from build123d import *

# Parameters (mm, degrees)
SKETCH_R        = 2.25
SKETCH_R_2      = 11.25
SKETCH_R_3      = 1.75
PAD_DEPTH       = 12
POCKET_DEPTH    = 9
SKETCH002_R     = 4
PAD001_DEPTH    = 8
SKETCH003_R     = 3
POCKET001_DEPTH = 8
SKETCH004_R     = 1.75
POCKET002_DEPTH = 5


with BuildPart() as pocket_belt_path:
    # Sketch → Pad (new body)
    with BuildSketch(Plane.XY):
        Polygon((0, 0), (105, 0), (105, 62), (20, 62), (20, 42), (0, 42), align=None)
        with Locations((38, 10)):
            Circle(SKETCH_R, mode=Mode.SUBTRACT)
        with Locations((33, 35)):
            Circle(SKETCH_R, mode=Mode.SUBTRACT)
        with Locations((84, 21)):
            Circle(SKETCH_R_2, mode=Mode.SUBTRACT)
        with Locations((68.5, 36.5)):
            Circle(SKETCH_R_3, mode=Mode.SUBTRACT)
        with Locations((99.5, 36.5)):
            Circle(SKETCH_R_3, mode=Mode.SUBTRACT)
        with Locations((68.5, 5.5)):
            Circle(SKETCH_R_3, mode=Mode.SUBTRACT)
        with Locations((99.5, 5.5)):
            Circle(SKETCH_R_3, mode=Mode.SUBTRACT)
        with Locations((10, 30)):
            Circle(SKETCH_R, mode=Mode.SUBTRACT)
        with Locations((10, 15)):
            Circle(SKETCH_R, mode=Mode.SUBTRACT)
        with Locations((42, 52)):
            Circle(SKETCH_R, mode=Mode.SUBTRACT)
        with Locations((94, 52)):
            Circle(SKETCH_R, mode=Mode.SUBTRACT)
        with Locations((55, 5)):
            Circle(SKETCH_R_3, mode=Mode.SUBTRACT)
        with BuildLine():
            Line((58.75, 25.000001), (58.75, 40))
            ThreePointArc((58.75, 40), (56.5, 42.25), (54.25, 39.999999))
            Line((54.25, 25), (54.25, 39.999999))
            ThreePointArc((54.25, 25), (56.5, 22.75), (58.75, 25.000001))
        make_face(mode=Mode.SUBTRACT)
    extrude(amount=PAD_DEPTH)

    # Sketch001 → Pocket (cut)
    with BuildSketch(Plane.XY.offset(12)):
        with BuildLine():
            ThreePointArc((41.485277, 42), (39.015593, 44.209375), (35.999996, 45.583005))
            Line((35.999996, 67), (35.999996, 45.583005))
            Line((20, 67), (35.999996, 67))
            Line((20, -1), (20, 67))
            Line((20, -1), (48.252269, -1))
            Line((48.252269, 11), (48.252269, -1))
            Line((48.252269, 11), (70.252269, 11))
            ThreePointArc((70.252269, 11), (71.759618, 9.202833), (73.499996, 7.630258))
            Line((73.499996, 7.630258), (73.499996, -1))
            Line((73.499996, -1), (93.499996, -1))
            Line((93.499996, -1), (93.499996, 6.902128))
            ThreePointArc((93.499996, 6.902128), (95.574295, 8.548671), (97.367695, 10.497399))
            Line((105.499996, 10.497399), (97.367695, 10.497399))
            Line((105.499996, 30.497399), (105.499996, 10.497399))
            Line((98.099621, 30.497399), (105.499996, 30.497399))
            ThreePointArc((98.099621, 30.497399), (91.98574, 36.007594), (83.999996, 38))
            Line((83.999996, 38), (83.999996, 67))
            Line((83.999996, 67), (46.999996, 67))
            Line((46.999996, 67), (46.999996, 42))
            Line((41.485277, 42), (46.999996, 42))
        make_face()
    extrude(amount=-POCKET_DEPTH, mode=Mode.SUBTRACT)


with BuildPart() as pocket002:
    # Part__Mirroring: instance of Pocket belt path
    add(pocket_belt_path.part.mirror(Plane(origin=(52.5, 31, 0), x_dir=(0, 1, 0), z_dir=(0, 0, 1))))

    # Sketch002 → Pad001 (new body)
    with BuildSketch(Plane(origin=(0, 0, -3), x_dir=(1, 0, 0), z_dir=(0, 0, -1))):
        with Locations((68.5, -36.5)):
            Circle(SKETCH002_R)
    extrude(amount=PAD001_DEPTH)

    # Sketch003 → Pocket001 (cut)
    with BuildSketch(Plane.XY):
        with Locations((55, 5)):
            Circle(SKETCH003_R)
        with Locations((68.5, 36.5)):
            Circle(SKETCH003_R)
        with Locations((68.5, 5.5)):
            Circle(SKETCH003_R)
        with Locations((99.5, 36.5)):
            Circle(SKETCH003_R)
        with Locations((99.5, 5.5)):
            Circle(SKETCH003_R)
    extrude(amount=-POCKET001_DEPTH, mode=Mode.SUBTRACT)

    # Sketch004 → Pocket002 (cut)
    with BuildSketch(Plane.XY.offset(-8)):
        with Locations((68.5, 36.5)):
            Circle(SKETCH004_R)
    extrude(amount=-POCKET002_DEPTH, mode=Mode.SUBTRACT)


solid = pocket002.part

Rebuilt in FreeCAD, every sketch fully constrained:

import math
import FreeCAD as App
import Part
import Sketcher

V = App.Vector


def add_polygon(sketch, points):
    """Adds a closed chain of lines whose ends are joined by coincident constraints."""
    first, n = sketch.GeometryCount, len(points)
    for a, b in zip(points, points[1:] + points[:1]):
        sketch.addGeometry(Part.LineSegment(App.Vector(*a, 0), App.Vector(*b, 0)), False)
    for i in range(n):
        sketch.addConstraint(Sketcher.Constraint("Coincident", first + i, 2, first + (i + 1) % n, 1))

doc = App.newDocument("Part")
body = doc.addObject("PartDesign::Body", "Body")

# Sketch on XY plane
sketch1 = doc.addObject("Sketcher::SketchObject", "Sketch")
body.addObject(sketch1)
sketch1.AttachmentSupport = (doc.XY_Plane, [""])
sketch1.MapMode = "FlatFace"
add_polygon(sketch1, [(0, 0), (105, 0), (105, 62), (20, 62), (20, 42), (0, 42)])  # lines 0-5
sketch1.addGeometry(Part.Circle(V(10, 15, 0), V(0, 0, 1), 2.25), False)  # 6
sketch1.addGeometry(Part.Circle(V(38, 10, 0), V(0, 0, 1), 2.25), False)  # 7
sketch1.addGeometry(Part.Circle(V(55, 5, 0), V(0, 0, 1), 1.75), False)  # 8
sketch1.addGeometry(Part.Circle(V(68.5, 5.5, 0), V(0, 0, 1), 1.75), False)  # 9
sketch1.addGeometry(Part.Circle(V(99.5, 5.5, 0), V(0, 0, 1), 1.75), False)  # 10
sketch1.addGeometry(Part.Circle(V(84, 21, 0), V(0, 0, 1), 11.25), False)  # 11
sketch1.addGeometry(Part.Circle(V(10, 30, 0), V(0, 0, 1), 2.25), False)  # 12
sketch1.addGeometry(Part.Circle(V(33, 35, 0), V(0, 0, 1), 2.25), False)  # 13
sketch1.addGeometry(Part.Circle(V(42, 52, 0), V(0, 0, 1), 2.25), False)  # 14
sketch1.addGeometry(Part.LineSegment(V(58.75, 40, 0), V(58.75, 25.000001, 0)), False)  # 15
sketch1.addGeometry(Part.ArcOfCircle(Part.Circle(V(56.5, 25, 0), V(0, 0, 1), 2.25), math.radians(180), math.radians(360.000025)), False)  # 16
sketch1.addGeometry(Part.LineSegment(V(54.25, 25, 0), V(54.25, 39.999999, 0)), False)  # 17
sketch1.addGeometry(Part.ArcOfCircle(Part.Circle(V(56.5, 40, 0), V(0, 0, 1), 2.25), math.radians(0), math.radians(180.000025)), False)  # 18
sketch1.addGeometry(Part.Circle(V(68.5, 36.5, 0), V(0, 0, 1), 1.75), False)  # 19
sketch1.addGeometry(Part.Circle(V(99.5, 36.5, 0), V(0, 0, 1), 1.75), False)  # 20
sketch1.addGeometry(Part.Circle(V(94, 52, 0), V(0, 0, 1), 2.25), False)  # 21
sketch1.addConstraint(Sketcher.Constraint("Tangent", 15, 2, 16, 2))
sketch1.addConstraint(Sketcher.Constraint("Tangent", 16, 1, 17, 1))
sketch1.addConstraint(Sketcher.Constraint("Tangent", 17, 2, 18, 2))
sketch1.addConstraint(Sketcher.Constraint("Tangent", 18, 1, 15, 1))
sketch1.addConstraint(Sketcher.Constraint("Horizontal", 0))
sketch1.addConstraint(Sketcher.Constraint("Vertical", 1))
sketch1.addConstraint(Sketcher.Constraint("Horizontal", 2))
sketch1.addConstraint(Sketcher.Constraint("Vertical", 3))
sketch1.addConstraint(Sketcher.Constraint("Horizontal", 4))
sketch1.addConstraint(Sketcher.Constraint("Vertical", 5))
sketch1.addConstraint(Sketcher.Constraint("Vertical", 15))
sketch1.addConstraint(Sketcher.Constraint("Vertical", 17))
sketch1.addConstraint(Sketcher.Constraint("Coincident", 5, 2, -1, 1))
sketch1.addConstraint(Sketcher.Constraint("Equal", 6, 7))
sketch1.addConstraint(Sketcher.Constraint("Equal", 8, 9))
sketch1.addConstraint(Sketcher.Constraint("Equal", 9, 10))
sketch1.addConstraint(Sketcher.Constraint("Equal", 7, 12))
sketch1.addConstraint(Sketcher.Constraint("Equal", 12, 13))
sketch1.addConstraint(Sketcher.Constraint("Equal", 13, 14))
sketch1.addConstraint(Sketcher.Constraint("Equal", 14, 16))
sketch1.addConstraint(Sketcher.Constraint("Equal", 10, 19))
sketch1.addConstraint(Sketcher.Constraint("Equal", 19, 20))
sketch1.addConstraint(Sketcher.Constraint("Equal", 18, 21))
sketch1.addConstraint(Sketcher.Constraint("Horizontal", 9, 3, 10, 3))
sketch1.addConstraint(Sketcher.Constraint("Horizontal", 19, 3, 20, 3))
sketch1.addConstraint(Sketcher.Constraint("Horizontal", 14, 3, 21, 3))
sketch1.addConstraint(Sketcher.Constraint("Vertical", 6, 3, 12, 3))
sketch1.addConstraint(Sketcher.Constraint("Vertical", 9, 3, 19, 3))
sketch1.addConstraint(Sketcher.Constraint("Vertical", 10, 3, 20, 3))
sketch1.addConstraint(Sketcher.Constraint("Equal", 4, 3))
sketch1.addConstraint(Sketcher.Constraint("Diameter", 6, 4.5))
sketch1.addConstraint(Sketcher.Constraint("Diameter", 8, 3.5))
sketch1.addConstraint(Sketcher.Constraint("Diameter", 11, 22.5))
sketch1.addConstraint(Sketcher.Constraint("DistanceX", 0, 1, 0, 2, 105.0))
sketch1.addConstraint(Sketcher.Constraint("DistanceX", 2, 2, 2, 1, 85.0))
sketch1.addConstraint(Sketcher.Constraint("DistanceY", 1, 1, 1, 2, 62.0))
sketch1.addConstraint(Sketcher.Constraint("DistanceY", 15, 2, 15, 1, 14.999999))
sketch1.addConstraint(Sketcher.Constraint("DistanceX", -1, 1, 6, 3, 10.0))
sketch1.addConstraint(Sketcher.Constraint("DistanceY", -1, 1, 6, 3, 15.0))
sketch1.addConstraint(Sketcher.Constraint("DistanceX", -1, 1, 7, 3, 38.0))
sketch1.addConstraint(Sketcher.Constraint("DistanceY", -1, 1, 7, 3, 10.0))
sketch1.addConstraint(Sketcher.Constraint("DistanceX", -1, 1, 8, 3, 55.0))
sketch1.addConstraint(Sketcher.Constraint("DistanceY", -1, 1, 8, 3, 5.0))
sketch1.addConstraint(Sketcher.Constraint("DistanceX", -1, 1, 11, 3, 84.0))
sketch1.addConstraint(Sketcher.Constraint("DistanceY", -1, 1, 11, 3, 21.0))
sketch1.addConstraint(Sketcher.Constraint("DistanceY", -1, 1, 12, 3, 30.0))
sketch1.addConstraint(Sketcher.Constraint("DistanceX", -1, 1, 13, 3, 33.0))
sketch1.addConstraint(Sketcher.Constraint("DistanceY", -1, 1, 13, 3, 35.0))
sketch1.addConstraint(Sketcher.Constraint("DistanceX", -1, 1, 14, 3, 42.0))
sketch1.addConstraint(Sketcher.Constraint("DistanceY", -1, 1, 14, 3, 52.0))
sketch1.addConstraint(Sketcher.Constraint("DistanceY", -1, 1, 16, 3, 25.0))
sketch1.addConstraint(Sketcher.Constraint("DistanceX", -1, 1, 21, 3, 94.0))
sketch1.addConstraint(Sketcher.Constraint("DistanceX", 9, 3, 10, 3, 31.0))
sketch1.addConstraint(Sketcher.Constraint("DistanceX", 16, 3, 9, 3, 12.0))
sketch1.addConstraint(Sketcher.Constraint("DistanceY", 9, 3, 19, 3, 31.0))
sketch1.addConstraint(Sketcher.Constraint("DistanceX", -1, 1, 9, 3, 68.5))
sketch1.addConstraint(Sketcher.Constraint("DistanceY", -1, 1, 9, 3, 5.5))
pad1 = doc.addObject("PartDesign::Pad", "Pad")
body.addObject(pad1)
pad1.Profile = sketch1
pad1.Length = 12

# Sketch on XY plane
sketch2 = doc.addObject("Sketcher::SketchObject", "Sketch001")
body.addObject(sketch2)
sketch2.AttachmentSupport = (doc.XY_Plane, [""])
sketch2.MapMode = "FlatFace"
sketch2.AttachmentOffset = App.Placement(V(0, 0, 12), App.Rotation())
sketch2.addGeometry(Part.ArcOfCircle(Part.Circle(V(32.999996, 35.000001, 0), V(0, 0, 1), 10.999999), math.radians(39.521196), math.radians(74.17338)), False)
sketch2.addGeometry(Part.LineSegment(V(35.999996, 45.583005, 0), V(35.999996, 67, 0)), False)
sketch2.addGeometry(Part.LineSegment(V(35.999996, 67, 0), V(20, 67, 0)), False)
sketch2.addGeometry(Part.LineSegment(V(20, 67, 0), V(20, -1, 0)), False)
sketch2.addGeometry(Part.LineSegment(V(20, -1, 0), V(48.252269, -1, 0)), False)
sketch2.addGeometry(Part.LineSegment(V(48.252269, -1, 0), V(48.252269, 11, 0)), False)
sketch2.addGeometry(Part.LineSegment(V(48.252269, 11, 0), V(70.252269, 11, 0)), False)
sketch2.addGeometry(Part.ArcOfCircle(Part.Circle(V(83.999989, 20.999992, 0), V(0, 0, 1), 16.99999), math.radians(-143.968127), math.radians(-128.144509)), False)
sketch2.addGeometry(Part.LineSegment(V(73.499996, 7.630258, 0), V(73.499996, -1, 0)), False)
sketch2.addGeometry(Part.LineSegment(V(73.499996, -1, 0), V(93.499996, -1, 0)), False)
sketch2.addGeometry(Part.LineSegment(V(93.499996, -1, 0), V(93.499996, 6.902128, 0)), False)
sketch2.addGeometry(Part.ArcOfCircle(Part.Circle(V(83.999983, 21.000016, 0), V(0, 0, 1), 17.00002), math.radians(-56.025516), math.radians(-38.155674)), False)
sketch2.addGeometry(Part.LineSegment(V(97.367695, 10.497399, 0), V(105.499996, 10.497399, 0)), False)
sketch2.addGeometry(Part.LineSegment(V(105.499996, 10.497399, 0), V(105.499996, 30.497399, 0)), False)
sketch2.addGeometry(Part.LineSegment(V(105.499996, 30.497399, 0), V(98.099621, 30.497399, 0)), False)
sketch2.addGeometry(Part.ArcOfCircle(Part.Circle(V(83.999994, 20.999995, 0), V(0, 0, 1), 17.000005), math.radians(33.963915), math.radians(89.999993)), False)
sketch2.addGeometry(Part.LineSegment(V(83.999996, 38, 0), V(83.999996, 67, 0)), False)
sketch2.addGeometry(Part.LineSegment(V(83.999996, 67, 0), V(46.999996, 67, 0)), False)
sketch2.addGeometry(Part.LineSegment(V(46.999996, 67, 0), V(46.999996, 42, 0)), False)
sketch2.addGeometry(Part.LineSegment(V(46.999996, 42, 0), V(41.485277, 42, 0)), False)
sketch2.addConstraint(Sketcher.Constraint("Coincident", 0, 2, 1, 1))
sketch2.addConstraint(Sketcher.Constraint("Coincident", 1, 2, 2, 1))
sketch2.addConstraint(Sketcher.Constraint("Coincident", 2, 2, 3, 1))
sketch2.addConstraint(Sketcher.Constraint("Coincident", 3, 2, 4, 1))
sketch2.addConstraint(Sketcher.Constraint("Coincident", 4, 2, 5, 1))
sketch2.addConstraint(Sketcher.Constraint("Coincident", 5, 2, 6, 1))
sketch2.addConstraint(Sketcher.Constraint("Coincident", 6, 2, 7, 1))
sketch2.addConstraint(Sketcher.Constraint("Coincident", 7, 2, 8, 1))
sketch2.addConstraint(Sketcher.Constraint("Coincident", 8, 2, 9, 1))
sketch2.addConstraint(Sketcher.Constraint("Coincident", 9, 2, 10, 1))
sketch2.addConstraint(Sketcher.Constraint("Coincident", 10, 2, 11, 1))
sketch2.addConstraint(Sketcher.Constraint("Coincident", 11, 2, 12, 1))
sketch2.addConstraint(Sketcher.Constraint("Coincident", 12, 2, 13, 1))
sketch2.addConstraint(Sketcher.Constraint("Coincident", 13, 2, 14, 1))
sketch2.addConstraint(Sketcher.Constraint("Coincident", 14, 2, 15, 1))
sketch2.addConstraint(Sketcher.Constraint("Coincident", 15, 2, 16, 1))
sketch2.addConstraint(Sketcher.Constraint("Coincident", 16, 2, 17, 1))
sketch2.addConstraint(Sketcher.Constraint("Coincident", 17, 2, 18, 1))
sketch2.addConstraint(Sketcher.Constraint("Coincident", 18, 2, 19, 1))
sketch2.addConstraint(Sketcher.Constraint("Coincident", 19, 2, 0, 1))
sketch2.addConstraint(Sketcher.Constraint("Vertical", 1))
sketch2.addConstraint(Sketcher.Constraint("Horizontal", 2))
sketch2.addConstraint(Sketcher.Constraint("Vertical", 3))
sketch2.addConstraint(Sketcher.Constraint("Horizontal", 4))
sketch2.addConstraint(Sketcher.Constraint("Vertical", 5))
sketch2.addConstraint(Sketcher.Constraint("Horizontal", 6))
sketch2.addConstraint(Sketcher.Constraint("Vertical", 8))
sketch2.addConstraint(Sketcher.Constraint("Horizontal", 9))
sketch2.addConstraint(Sketcher.Constraint("Vertical", 10))
sketch2.addConstraint(Sketcher.Constraint("Horizontal", 12))
sketch2.addConstraint(Sketcher.Constraint("Vertical", 13))
sketch2.addConstraint(Sketcher.Constraint("Horizontal", 14))
sketch2.addConstraint(Sketcher.Constraint("Vertical", 16))
sketch2.addConstraint(Sketcher.Constraint("Horizontal", 17))
sketch2.addConstraint(Sketcher.Constraint("Vertical", 18))
sketch2.addConstraint(Sketcher.Constraint("Horizontal", 19))
sketch2.addConstraint(Sketcher.Constraint("Coincident", 15, 3, 7, 3))
sketch2.addConstraint(Sketcher.Constraint("Horizontal", 4, 2, 8, 2))
sketch2.addConstraint(Sketcher.Constraint("Horizontal", 2, 2, 16, 2))
sketch2.addConstraint(Sketcher.Constraint("Equal", 9, 13))
sketch2.addConstraint(Sketcher.Constraint("Radius", 0, 10.999999))
sketch2.addConstraint(Sketcher.Constraint("DistanceX", 6, 1, 6, 2, 22.0))
sketch2.addConstraint(Sketcher.Constraint("DistanceX", 9, 1, 9, 2, 20.0))
sketch2.addConstraint(Sketcher.Constraint("DistanceX", 17, 2, 17, 1, 37.0))
sketch2.addConstraint(Sketcher.Constraint("DistanceY", 3, 2, 3, 1, 68.0))
sketch2.addConstraint(Sketcher.Constraint("DistanceY", 5, 1, 5, 2, 12.0))
sketch2.addConstraint(Sketcher.Constraint("DistanceY", 16, 1, 16, 2, 29.0))
sketch2.addConstraint(Sketcher.Constraint("DistanceY", 18, 2, 18, 1, 25.0))
sketch2.addConstraint(Sketcher.Constraint("DistanceY", -1, 1, 0, 3, 35.000001))
sketch2.addConstraint(Sketcher.Constraint("DistanceY", -1, 1, 1, 2, 67.0))
sketch2.addConstraint(Sketcher.Constraint("DistanceX", -1, 1, 2, 2, 20.0))
sketch2.addConstraint(Sketcher.Constraint("DistanceX", 0, 3, 0, 2, 3.0))
sketch2.addConstraint(Sketcher.Constraint("DistanceX", 10, 2, 12, 2, 12.0))
sketch2.addConstraint(Sketcher.Constraint("DistanceX", 1, 2, 17, 2, 11.0))
sketch2.addConstraint(Sketcher.Constraint("DistanceX", 15, 2, 13, 2, 21.5))
sketch2.addConstraint(Sketcher.Constraint("Radius", 7, 16.99999))
sketch2.addConstraint(Sketcher.Constraint("Radius", 11, 17.00002))
sketch2.addConstraint(Sketcher.Constraint("DistanceX", 12, 1, 12, 2, 8.132301))
sketch2.addConstraint(Sketcher.Constraint("Radius", 15, 17.000005))
sketch2.addConstraint(Sketcher.Constraint("DistanceX", 4, 1, 4, 2, 28.252269))
sketch2.addConstraint(Sketcher.Constraint("DistanceY", 8, 2, 8, 1, 8.630258))
sketch2.addConstraint(Sketcher.Constraint("DistanceY", 10, 1, 10, 2, 7.902128))
sketch2.addConstraint(Sketcher.Constraint("DistanceY", -1, 1, 11, 2, 10.497399))
pocket1 = doc.addObject("PartDesign::Pocket", "Pocket")
body.addObject(pocket1)
pocket1.Profile = sketch2
pocket1.Length = 9
body2 = doc.addObject("PartDesign::Body", "Body001")
doc.recompute()

mirroring = doc.addObject("Part::Mirroring", "Mirroring")
mirroring.Source = body
mirroring.Base = V(52.5, 31, 0)
mirroring.Normal = V(0, 0, 1)
body2.BaseFeature = mirroring
doc.recompute()

# Sketch on XY plane
sketch3 = doc.addObject("Sketcher::SketchObject", "Sketch002")
body2.addObject(sketch3)
sketch3.AttachmentSupport = (doc.getObject("XY_Plane001"), [""])
sketch3.MapMode = "FlatFace"
sketch3.AttachmentOffset = App.Placement(V(0, 0, -3), App.Rotation())
sketch3.addGeometry(Part.Circle(V(68.5, 36.5, 0), V(0, 0, 1), 4), False)
sketch3.addConstraint(Sketcher.Constraint("Diameter", 0, 8.0))
sketch3.addConstraint(Sketcher.Constraint("DistanceX", -1, 1, 0, 3, 68.5))
sketch3.addConstraint(Sketcher.Constraint("DistanceY", -1, 1, 0, 3, 36.5))
pad2 = doc.addObject("PartDesign::Pad", "Pad001")
body2.addObject(pad2)
pad2.Profile = sketch3
pad2.Length = 8
pad2.Reversed = True

# Sketch on XY plane
sketch4 = doc.addObject("Sketcher::SketchObject", "Sketch003")
body2.addObject(sketch4)
sketch4.AttachmentSupport = (doc.getObject("XY_Plane001"), [""])
sketch4.MapMode = "FlatFace"
sketch4.addGeometry(Part.Circle(V(55, 5, 0), V(0, 0, 1), 3), False)
sketch4.addGeometry(Part.Circle(V(68.5, 36.5, 0), V(0, 0, 1), 3), False)
sketch4.addGeometry(Part.Circle(V(68.5, 5.5, 0), V(0, 0, 1), 3), False)
sketch4.addGeometry(Part.Circle(V(99.5, 36.5, 0), V(0, 0, 1), 3), False)
sketch4.addGeometry(Part.Circle(V(99.5, 5.5, 0), V(0, 0, 1), 3), False)
sketch4.addConstraint(Sketcher.Constraint("Equal", 0, 1))
sketch4.addConstraint(Sketcher.Constraint("Equal", 1, 2))
sketch4.addConstraint(Sketcher.Constraint("Equal", 2, 3))
sketch4.addConstraint(Sketcher.Constraint("Equal", 3, 4))
sketch4.addConstraint(Sketcher.Constraint("Horizontal", 1, 3, 3, 3))
sketch4.addConstraint(Sketcher.Constraint("Horizontal", 2, 3, 4, 3))
sketch4.addConstraint(Sketcher.Constraint("Vertical", 1, 3, 2, 3))
sketch4.addConstraint(Sketcher.Constraint("Vertical", 3, 3, 4, 3))
sketch4.addConstraint(Sketcher.Constraint("Diameter", 0, 6.0))
sketch4.addConstraint(Sketcher.Constraint("DistanceX", -1, 1, 0, 3, 55.0))
sketch4.addConstraint(Sketcher.Constraint("DistanceY", -1, 1, 0, 3, 5.0))
sketch4.addConstraint(Sketcher.Constraint("DistanceY", 2, 3, 1, 3, 31.0))
sketch4.addConstraint(Sketcher.Constraint("DistanceX", 1, 3, 3, 3, 31.0))
sketch4.addConstraint(Sketcher.Constraint("DistanceX", -1, 1, 1, 3, 68.5))
sketch4.addConstraint(Sketcher.Constraint("DistanceY", -1, 1, 1, 3, 36.5))
pocket2 = doc.addObject("PartDesign::Pocket", "Pocket001")
body2.addObject(pocket2)
pocket2.Profile = sketch4
pocket2.Length = 8

# Sketch on XY plane
sketch5 = doc.addObject("Sketcher::SketchObject", "Sketch004")
body2.addObject(sketch5)
sketch5.AttachmentSupport = (doc.getObject("XY_Plane001"), [""])
sketch5.MapMode = "FlatFace"
sketch5.AttachmentOffset = App.Placement(V(0, 0, -8), App.Rotation())
sketch5.addGeometry(Part.Circle(V(68.5, 36.5, 0), V(0, 0, 1), 1.75), False)
sketch5.addConstraint(Sketcher.Constraint("Diameter", 0, 3.5))
sketch5.addConstraint(Sketcher.Constraint("DistanceX", -1, 1, 0, 3, 68.5))
sketch5.addConstraint(Sketcher.Constraint("DistanceY", -1, 1, 0, 3, 36.5))
pocket3 = doc.addObject("PartDesign::Pocket", "Pocket002")
body2.addObject(pocket3)
pocket3.Profile = sketch5
pocket3.Length = 5
body.Visibility = False
mirroring.Visibility = False

doc.recompute()
